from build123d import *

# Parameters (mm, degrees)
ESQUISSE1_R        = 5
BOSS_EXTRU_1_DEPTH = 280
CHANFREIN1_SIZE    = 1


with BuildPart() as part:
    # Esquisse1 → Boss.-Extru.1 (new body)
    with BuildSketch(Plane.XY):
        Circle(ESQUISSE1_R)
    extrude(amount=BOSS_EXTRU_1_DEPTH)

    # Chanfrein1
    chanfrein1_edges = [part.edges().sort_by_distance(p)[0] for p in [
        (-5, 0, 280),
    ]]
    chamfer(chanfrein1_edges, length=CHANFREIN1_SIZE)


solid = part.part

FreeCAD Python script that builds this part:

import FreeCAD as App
import Part
import Sketcher
from FreeCAD import Vector
Q = App.Units.Quantity


def edges_at(feature, points):
    """Names of the edges that pass closest to the given points."""
    edges = feature.Shape.Edges
    near = lambda p: min(range(len(edges)), key=lambda i: edges[i].distToShape(Part.Vertex(*p))[0])
    return sorted({f"Edge{near(p) + 1}" for p in points})

doc = App.newDocument("Part")
body = doc.addObject("PartDesign::Body", "Body")

sketch1 = body.newObject("Sketcher::SketchObject", "Sketch")
sketch1.AttachmentSupport = (doc.getObject("XY_Plane"), [""])
sketch1.MapMode = "FlatFace"
sketch1.addGeometry(Part.Circle(Vector(0, 0, 0), Vector(0, 0, 1), 5), False)
sketch1.addConstraint([
    Sketcher.Constraint("Coincident", 0, 3, -1, 1),
    Sketcher.Constraint("Diameter", 0, Q("10 mm")),
])
pad1 = body.newObject("PartDesign::Pad", "Pad")
pad1.Profile = sketch1
pad1.Length = 280
doc.recompute()

chamfer = body.newObject("PartDesign::Chamfer", "Chamfer")
chamfer.Base = (pad1, edges_at(pad1, [(-5, 0, 280)]))
chamfer.Size = 1

doc.recompute()
